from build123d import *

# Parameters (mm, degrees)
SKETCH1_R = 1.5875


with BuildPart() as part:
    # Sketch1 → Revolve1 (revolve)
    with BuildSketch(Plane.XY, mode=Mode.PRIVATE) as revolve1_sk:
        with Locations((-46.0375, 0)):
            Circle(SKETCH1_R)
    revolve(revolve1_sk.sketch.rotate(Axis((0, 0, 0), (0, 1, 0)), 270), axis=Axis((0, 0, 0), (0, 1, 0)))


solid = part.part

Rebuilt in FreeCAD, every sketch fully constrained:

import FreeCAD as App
import Part
import Sketcher
Q = App.Units.Quantity

doc = App.newDocument("Part")
body = doc.addObject("PartDesign::Body", "Body")

# Sketch on XY plane
sketch1 = body.newObject("Sketcher::SketchObject", "Sketch")
sketch1.AttachmentSupport = (doc.getObject("XY_Plane"), [""])
sketch1.MapMode = "FlatFace"
sketch1.addGeometry(Part.Circle(App.Vector(-46.0375, 0, 0), App.Vector(0, 0, 1), 1.5875), False)
sketch1.addConstraint(Sketcher.Constraint("PointOnObject", 0, 3, -1))
sketch1.addConstraint(Sketcher.Constraint("Diameter", 0, Q("0.125 in")))
sketch1.addConstraint(Sketcher.Constraint("DistanceX", 0, 3, -1, 1, Q("1.8125 in")))
revolution = body.newObject("PartDesign::Revolution", "Revolution")
revolution.Profile = sketch1
revolution.ReferenceAxis = (sketch1, ["V_Axis"])
revolution.Angle = 360

doc.recompute()
